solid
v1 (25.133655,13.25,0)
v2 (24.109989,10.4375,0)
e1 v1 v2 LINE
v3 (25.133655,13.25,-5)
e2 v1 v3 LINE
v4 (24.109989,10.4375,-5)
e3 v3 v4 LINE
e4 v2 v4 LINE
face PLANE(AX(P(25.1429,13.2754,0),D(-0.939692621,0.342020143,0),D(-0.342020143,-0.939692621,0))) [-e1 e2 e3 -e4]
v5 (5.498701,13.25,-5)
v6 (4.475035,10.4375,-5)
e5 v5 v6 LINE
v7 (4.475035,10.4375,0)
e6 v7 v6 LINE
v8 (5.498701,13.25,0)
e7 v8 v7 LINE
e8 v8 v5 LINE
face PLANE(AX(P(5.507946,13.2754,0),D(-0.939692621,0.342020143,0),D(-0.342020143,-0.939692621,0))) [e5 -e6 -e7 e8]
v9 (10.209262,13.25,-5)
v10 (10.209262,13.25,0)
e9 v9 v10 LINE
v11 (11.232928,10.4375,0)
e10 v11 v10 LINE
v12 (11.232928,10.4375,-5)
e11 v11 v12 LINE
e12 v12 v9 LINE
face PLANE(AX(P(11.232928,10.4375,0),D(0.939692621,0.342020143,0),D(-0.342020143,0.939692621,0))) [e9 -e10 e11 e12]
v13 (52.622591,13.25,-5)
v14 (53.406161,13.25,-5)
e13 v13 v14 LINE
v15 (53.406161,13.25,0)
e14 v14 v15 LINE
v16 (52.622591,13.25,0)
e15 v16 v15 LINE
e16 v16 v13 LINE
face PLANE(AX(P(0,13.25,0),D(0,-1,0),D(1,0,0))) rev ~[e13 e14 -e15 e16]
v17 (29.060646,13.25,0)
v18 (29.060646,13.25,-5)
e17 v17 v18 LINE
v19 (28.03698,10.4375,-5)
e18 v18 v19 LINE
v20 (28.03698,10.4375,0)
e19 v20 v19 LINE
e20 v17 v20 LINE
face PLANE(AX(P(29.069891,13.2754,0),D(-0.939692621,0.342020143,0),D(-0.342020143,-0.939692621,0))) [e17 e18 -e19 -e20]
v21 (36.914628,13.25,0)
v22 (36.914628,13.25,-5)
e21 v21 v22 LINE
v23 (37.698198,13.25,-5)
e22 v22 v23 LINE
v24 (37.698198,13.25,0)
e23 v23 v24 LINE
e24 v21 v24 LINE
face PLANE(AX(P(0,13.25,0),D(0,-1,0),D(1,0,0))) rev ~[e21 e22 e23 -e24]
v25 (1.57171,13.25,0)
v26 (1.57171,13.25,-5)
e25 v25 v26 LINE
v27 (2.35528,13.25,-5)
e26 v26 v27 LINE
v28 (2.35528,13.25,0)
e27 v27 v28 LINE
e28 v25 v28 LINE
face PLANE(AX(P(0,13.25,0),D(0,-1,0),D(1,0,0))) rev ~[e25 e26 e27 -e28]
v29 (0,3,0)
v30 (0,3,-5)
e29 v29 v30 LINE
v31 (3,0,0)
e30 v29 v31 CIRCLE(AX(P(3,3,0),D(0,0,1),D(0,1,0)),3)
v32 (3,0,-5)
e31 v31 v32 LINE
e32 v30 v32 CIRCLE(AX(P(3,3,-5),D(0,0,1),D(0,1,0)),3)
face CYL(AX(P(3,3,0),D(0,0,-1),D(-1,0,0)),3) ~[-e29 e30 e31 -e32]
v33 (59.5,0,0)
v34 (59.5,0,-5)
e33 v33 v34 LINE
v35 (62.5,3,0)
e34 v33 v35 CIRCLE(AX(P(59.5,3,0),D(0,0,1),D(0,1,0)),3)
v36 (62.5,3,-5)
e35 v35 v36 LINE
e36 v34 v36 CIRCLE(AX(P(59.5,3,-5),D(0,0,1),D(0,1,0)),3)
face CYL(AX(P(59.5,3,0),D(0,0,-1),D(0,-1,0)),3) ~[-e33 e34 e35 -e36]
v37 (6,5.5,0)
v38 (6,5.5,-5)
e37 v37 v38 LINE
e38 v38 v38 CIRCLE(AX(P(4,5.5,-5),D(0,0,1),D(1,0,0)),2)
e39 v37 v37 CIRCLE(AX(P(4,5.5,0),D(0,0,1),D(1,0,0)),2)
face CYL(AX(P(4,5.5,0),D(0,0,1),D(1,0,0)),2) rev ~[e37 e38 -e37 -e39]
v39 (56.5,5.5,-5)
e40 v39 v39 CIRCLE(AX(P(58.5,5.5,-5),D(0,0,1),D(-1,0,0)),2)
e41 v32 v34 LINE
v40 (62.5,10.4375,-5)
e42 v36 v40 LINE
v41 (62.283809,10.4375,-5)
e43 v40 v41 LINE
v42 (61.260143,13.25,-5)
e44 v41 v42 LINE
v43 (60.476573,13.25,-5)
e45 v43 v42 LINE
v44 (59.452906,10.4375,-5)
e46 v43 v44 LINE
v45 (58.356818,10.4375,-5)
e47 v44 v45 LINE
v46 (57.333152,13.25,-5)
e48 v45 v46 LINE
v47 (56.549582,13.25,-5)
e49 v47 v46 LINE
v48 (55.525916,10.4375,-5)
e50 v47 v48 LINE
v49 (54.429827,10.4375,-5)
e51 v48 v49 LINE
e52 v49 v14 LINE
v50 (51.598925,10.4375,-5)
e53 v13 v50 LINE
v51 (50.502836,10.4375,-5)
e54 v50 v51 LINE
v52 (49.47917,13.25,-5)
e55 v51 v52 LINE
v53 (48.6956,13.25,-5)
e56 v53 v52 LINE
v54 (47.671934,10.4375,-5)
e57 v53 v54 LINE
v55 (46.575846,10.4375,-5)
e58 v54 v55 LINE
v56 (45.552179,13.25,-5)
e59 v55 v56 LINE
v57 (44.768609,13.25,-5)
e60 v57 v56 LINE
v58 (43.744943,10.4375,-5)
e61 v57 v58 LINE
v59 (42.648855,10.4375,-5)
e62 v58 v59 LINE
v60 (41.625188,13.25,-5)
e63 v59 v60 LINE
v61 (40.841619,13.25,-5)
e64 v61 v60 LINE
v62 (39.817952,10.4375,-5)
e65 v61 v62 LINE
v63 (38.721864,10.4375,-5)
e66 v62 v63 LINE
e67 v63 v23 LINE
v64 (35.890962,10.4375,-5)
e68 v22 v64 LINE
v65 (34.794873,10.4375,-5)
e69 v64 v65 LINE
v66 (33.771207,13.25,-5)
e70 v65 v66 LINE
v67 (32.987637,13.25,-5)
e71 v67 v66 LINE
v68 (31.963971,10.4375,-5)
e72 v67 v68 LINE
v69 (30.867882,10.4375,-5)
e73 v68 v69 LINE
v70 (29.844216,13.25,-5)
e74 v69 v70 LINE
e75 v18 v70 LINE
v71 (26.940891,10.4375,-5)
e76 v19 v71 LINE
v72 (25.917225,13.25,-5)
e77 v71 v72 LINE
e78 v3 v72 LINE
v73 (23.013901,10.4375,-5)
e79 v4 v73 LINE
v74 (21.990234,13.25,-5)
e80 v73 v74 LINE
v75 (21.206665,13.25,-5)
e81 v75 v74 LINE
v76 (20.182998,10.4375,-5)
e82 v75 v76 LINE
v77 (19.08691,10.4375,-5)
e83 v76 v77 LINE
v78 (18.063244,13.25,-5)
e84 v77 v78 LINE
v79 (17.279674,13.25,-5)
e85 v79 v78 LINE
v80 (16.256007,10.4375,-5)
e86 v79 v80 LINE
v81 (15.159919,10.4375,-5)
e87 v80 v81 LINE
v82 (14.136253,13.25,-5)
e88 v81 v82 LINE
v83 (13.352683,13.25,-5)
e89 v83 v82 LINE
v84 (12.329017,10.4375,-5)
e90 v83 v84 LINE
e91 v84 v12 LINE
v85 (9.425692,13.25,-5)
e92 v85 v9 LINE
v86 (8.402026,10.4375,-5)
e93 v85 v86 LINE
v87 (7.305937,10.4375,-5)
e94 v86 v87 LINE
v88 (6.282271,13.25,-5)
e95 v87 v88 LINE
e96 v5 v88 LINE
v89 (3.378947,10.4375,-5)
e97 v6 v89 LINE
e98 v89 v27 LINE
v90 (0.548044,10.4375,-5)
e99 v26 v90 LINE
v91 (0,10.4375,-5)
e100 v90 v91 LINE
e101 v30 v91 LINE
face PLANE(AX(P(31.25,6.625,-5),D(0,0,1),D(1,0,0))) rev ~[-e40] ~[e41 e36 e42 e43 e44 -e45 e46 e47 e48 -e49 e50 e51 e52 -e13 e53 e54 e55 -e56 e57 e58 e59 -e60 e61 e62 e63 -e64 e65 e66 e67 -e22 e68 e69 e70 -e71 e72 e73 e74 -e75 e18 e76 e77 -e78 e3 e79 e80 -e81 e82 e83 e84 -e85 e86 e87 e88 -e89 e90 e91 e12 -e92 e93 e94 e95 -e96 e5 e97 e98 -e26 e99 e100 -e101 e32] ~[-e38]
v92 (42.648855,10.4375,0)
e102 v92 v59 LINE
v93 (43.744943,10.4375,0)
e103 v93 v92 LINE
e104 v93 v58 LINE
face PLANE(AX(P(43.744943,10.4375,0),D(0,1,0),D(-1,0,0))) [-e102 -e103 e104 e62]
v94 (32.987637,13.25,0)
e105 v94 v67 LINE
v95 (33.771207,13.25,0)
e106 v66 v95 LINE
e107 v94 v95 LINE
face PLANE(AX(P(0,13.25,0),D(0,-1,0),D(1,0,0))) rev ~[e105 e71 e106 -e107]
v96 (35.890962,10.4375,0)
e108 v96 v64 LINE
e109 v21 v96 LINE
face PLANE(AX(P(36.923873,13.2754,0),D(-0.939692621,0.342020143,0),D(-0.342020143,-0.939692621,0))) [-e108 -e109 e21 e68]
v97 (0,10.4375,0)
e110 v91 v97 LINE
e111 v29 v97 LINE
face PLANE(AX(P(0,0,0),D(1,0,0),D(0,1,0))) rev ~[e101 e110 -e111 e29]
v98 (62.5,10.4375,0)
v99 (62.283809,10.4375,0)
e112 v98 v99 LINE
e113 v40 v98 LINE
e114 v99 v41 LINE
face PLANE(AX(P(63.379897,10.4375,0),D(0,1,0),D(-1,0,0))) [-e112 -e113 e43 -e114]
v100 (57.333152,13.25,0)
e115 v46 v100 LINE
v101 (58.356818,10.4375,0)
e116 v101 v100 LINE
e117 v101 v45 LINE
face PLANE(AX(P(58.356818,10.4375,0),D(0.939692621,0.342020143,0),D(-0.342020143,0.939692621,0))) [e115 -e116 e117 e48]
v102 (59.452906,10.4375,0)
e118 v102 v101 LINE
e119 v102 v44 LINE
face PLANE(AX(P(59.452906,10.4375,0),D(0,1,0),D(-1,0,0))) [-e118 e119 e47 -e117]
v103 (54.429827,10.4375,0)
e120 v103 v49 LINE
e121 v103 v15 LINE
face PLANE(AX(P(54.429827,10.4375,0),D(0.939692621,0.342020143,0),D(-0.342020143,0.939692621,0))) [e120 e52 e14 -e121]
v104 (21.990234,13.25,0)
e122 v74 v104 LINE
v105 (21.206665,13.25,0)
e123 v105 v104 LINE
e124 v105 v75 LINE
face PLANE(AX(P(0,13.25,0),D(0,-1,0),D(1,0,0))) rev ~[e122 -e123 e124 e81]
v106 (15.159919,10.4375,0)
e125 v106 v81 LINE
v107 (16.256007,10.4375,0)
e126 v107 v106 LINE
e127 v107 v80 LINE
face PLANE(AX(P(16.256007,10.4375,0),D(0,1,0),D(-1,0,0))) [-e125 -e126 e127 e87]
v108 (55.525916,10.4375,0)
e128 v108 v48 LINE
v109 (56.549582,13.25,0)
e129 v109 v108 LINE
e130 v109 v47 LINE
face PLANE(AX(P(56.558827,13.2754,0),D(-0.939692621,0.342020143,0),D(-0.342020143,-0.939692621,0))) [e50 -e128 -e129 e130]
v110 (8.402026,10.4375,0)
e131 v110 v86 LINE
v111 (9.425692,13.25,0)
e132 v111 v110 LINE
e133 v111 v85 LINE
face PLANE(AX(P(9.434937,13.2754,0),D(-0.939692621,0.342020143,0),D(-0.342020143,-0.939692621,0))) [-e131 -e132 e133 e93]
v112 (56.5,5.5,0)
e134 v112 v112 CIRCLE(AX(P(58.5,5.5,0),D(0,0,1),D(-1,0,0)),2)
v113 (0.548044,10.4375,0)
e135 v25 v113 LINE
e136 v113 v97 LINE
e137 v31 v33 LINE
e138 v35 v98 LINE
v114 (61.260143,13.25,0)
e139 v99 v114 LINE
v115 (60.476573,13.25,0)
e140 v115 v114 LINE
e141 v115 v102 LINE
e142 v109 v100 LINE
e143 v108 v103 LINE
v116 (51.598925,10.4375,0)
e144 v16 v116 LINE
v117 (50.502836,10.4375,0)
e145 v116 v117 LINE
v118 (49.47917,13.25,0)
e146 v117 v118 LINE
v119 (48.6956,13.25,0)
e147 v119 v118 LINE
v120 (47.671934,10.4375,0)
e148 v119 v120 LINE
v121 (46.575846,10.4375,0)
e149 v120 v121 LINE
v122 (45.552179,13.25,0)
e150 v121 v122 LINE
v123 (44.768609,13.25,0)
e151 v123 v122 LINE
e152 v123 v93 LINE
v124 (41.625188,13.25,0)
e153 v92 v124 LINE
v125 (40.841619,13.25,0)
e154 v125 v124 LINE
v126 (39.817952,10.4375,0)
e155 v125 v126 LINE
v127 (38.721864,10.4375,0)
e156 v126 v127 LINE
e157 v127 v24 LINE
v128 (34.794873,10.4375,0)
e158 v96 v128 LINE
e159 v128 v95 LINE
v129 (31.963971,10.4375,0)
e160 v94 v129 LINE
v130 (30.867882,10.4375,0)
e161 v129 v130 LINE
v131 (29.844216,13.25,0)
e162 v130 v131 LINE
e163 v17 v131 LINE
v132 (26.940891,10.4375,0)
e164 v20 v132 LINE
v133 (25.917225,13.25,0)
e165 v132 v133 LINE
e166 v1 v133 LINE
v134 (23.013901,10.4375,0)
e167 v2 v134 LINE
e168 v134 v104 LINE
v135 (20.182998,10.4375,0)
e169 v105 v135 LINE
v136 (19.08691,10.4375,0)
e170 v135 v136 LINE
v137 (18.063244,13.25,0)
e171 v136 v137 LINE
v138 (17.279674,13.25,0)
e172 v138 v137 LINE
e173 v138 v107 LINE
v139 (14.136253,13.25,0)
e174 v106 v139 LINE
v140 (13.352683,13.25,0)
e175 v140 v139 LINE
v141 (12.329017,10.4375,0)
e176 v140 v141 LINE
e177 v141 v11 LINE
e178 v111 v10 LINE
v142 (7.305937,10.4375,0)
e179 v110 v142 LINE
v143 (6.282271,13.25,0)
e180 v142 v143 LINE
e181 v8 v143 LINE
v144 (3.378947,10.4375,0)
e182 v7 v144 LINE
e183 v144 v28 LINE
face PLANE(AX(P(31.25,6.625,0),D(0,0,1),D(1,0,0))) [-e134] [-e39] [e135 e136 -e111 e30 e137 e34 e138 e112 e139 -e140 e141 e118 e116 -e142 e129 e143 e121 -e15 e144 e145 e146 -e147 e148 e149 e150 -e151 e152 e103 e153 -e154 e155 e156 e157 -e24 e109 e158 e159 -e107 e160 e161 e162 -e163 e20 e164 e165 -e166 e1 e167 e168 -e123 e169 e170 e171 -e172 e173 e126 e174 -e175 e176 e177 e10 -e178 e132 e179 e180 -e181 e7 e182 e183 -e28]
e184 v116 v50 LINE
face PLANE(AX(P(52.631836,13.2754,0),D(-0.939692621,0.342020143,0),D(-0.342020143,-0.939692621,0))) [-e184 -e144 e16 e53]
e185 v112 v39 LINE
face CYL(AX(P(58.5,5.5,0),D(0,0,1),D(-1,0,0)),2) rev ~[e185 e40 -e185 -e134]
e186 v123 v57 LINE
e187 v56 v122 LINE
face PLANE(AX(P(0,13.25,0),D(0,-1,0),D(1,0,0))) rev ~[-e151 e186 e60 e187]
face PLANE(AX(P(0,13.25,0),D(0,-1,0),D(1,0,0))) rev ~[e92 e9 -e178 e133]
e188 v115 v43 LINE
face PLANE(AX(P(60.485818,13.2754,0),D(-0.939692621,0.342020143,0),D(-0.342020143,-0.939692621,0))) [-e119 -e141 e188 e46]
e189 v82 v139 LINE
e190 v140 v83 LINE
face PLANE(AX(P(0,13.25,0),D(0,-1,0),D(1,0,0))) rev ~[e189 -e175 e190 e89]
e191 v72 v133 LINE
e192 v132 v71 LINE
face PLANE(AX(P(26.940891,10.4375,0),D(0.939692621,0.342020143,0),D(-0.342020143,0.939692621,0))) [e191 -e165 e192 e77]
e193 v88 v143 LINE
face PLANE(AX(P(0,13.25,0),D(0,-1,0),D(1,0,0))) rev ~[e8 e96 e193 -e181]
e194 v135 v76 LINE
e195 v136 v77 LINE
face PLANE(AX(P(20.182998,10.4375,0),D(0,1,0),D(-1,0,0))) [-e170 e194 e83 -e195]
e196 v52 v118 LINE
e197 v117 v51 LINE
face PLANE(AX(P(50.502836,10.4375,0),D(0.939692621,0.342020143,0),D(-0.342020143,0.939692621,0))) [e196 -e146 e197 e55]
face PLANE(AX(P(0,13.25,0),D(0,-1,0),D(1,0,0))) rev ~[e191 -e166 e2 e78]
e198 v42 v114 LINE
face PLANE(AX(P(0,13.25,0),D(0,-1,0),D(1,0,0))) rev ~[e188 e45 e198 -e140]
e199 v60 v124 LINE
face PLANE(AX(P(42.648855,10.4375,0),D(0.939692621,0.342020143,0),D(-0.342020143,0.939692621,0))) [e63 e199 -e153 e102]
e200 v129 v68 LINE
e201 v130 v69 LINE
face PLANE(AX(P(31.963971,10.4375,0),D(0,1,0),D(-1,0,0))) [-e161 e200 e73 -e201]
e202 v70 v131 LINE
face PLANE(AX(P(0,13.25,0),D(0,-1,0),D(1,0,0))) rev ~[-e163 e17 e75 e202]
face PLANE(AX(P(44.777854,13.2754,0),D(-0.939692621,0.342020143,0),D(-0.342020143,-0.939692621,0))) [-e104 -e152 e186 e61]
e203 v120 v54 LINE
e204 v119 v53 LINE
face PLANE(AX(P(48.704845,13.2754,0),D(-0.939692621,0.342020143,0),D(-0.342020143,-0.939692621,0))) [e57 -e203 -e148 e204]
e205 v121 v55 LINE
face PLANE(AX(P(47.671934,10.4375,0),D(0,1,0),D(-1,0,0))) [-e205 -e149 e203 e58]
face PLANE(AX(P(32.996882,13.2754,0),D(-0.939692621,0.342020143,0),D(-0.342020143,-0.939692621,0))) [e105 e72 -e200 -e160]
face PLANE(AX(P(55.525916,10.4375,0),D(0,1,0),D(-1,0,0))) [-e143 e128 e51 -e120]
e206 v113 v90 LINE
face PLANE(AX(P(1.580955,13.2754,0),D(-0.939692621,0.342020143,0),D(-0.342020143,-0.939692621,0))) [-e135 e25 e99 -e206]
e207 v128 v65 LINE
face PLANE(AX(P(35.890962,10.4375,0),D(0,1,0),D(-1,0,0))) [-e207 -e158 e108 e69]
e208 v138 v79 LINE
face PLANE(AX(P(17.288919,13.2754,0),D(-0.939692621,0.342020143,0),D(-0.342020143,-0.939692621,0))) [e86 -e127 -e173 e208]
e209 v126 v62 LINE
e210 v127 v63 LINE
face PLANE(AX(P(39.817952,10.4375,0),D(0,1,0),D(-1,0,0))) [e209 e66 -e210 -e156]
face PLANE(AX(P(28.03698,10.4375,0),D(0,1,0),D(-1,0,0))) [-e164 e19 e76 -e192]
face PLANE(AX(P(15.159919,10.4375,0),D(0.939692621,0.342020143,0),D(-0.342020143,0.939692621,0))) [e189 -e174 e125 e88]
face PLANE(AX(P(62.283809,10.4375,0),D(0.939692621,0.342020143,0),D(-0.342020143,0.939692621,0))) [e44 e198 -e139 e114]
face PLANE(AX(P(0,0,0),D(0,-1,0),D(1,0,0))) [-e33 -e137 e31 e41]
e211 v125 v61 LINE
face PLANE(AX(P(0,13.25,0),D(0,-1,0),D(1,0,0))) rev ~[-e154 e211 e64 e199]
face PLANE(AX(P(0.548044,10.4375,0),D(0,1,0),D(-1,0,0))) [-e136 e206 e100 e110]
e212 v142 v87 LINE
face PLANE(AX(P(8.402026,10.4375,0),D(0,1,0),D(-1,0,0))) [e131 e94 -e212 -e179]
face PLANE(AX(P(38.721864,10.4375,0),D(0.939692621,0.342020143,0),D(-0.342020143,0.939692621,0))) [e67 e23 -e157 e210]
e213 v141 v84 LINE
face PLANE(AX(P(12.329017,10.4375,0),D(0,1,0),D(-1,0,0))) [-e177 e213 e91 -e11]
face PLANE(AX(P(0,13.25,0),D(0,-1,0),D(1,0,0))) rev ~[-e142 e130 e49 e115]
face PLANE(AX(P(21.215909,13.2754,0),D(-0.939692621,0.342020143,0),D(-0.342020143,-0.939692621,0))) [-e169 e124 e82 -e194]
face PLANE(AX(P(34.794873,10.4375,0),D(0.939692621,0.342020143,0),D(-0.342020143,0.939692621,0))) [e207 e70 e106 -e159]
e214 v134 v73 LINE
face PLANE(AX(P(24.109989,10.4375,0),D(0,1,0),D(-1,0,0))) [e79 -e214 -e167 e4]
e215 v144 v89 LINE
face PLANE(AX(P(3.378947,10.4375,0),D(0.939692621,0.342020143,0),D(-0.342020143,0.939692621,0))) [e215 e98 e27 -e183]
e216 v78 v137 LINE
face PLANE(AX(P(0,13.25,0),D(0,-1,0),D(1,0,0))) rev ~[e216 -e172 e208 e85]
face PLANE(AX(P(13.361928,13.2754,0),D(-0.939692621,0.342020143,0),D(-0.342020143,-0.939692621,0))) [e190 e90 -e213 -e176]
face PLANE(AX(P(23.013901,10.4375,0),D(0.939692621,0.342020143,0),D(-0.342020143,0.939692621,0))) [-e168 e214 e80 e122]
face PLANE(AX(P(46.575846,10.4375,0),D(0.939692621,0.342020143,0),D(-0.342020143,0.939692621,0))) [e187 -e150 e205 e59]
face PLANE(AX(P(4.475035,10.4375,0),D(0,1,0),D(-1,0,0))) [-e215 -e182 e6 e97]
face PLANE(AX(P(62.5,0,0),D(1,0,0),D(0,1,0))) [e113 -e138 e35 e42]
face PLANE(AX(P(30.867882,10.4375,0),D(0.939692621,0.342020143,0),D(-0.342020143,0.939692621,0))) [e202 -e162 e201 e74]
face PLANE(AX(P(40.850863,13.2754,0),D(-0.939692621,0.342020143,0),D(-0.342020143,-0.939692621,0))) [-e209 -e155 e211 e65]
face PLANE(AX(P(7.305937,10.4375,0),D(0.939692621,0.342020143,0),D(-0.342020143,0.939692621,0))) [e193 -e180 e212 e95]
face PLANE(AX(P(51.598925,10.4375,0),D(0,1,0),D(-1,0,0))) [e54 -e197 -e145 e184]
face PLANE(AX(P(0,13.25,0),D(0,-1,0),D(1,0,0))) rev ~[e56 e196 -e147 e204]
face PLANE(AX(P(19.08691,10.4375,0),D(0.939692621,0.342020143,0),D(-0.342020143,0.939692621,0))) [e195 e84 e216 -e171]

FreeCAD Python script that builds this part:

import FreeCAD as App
import Part
import Sketcher
Q = App.Units.Quantity


def edges_at(feature, points):
    """Names of the edges that pass closest to the given points."""
    edges = feature.Shape.Edges
    near = lambda p: min(range(len(edges)), key=lambda i: edges[i].distToShape(Part.Vertex(*p))[0])
    return sorted({f"Edge{near(p) + 1}" for p in points})


def add_polygon(sketch, points):
    """Adds a closed chain of lines whose ends are joined by coincident constraints."""
    first, n = sketch.GeometryCount, len(points)
    for a, b in zip(points, points[1:] + points[:1]):
        sketch.addGeometry(Part.LineSegment(App.Vector(*a, 0), App.Vector(*b, 0)), False)
    for i in range(n):
        sketch.addConstraint(Sketcher.Constraint("Coincident", first + i, 2, first + (i + 1) % n, 1))

doc = App.newDocument("Part")
params = doc.addObject("Spreadsheet::Sheet", "Params")
for row, (alias, value) in enumerate([
    ("sketch1_diameter", "4 mm"),
    ("sketch1_width", "62.5 mm"),
    ("sketch1_height", "13.25 mm"),
    ("pad1_length", "5 mm"),
    ("linearpattern_pitch", "3.926991 mm"),
    ("fillet_radius", "3 mm"),
], start=1):
    params.set(f"A{row}", alias)
    params.set(f"B{row}", "=" + value)
    params.setAlias(f"B{row}", alias)

body = doc.addObject("PartDesign::Body", "Body")

# Sketch on XY plane
sketch1 = body.newObject("Sketcher::SketchObject", "Sketch")
sketch1.AttachmentSupport = (doc.getObject("XY_Plane"), [""])
sketch1.MapMode = "FlatFace"
add_polygon(sketch1, [(0, 13.2), (0, 0), (62.5, 0), (62.5, 13.2)])  # lines 0-3
sketch1.addGeometry(Part.Circle(App.Vector(4, 5.5, 0), App.Vector(0, 0, 1), 2), False)  # 4
sketch1.addGeometry(Part.Circle(App.Vector(58.5, 5.5, 0), App.Vector(0, 0, 1), 2), False)  # 5
sketch1.addConstraint(Sketcher.Constraint("Vertical", 0))
sketch1.addConstraint(Sketcher.Constraint("Horizontal", 1))
sketch1.addConstraint(Sketcher.Constraint("Vertical", 2))
sketch1.addConstraint(Sketcher.Constraint("Horizontal", 3))
sketch1.addConstraint(Sketcher.Constraint("Coincident", 0, 2, -1, 1))
sketch1.addConstraint(Sketcher.Constraint("Equal", 4, 5))
sketch1.addConstraint(Sketcher.Constraint("Horizontal", 4, 3, 5, 3))
sketch1.addConstraint(Sketcher.Constraint("Diameter", 4, Q("4 mm")))
sketch1.addConstraint(Sketcher.Constraint("DistanceX", 1, 1, 1, 2, Q("62.5 mm")))
sketch1.addConstraint(Sketcher.Constraint("DistanceX", -1, 1, 4, 3, Q("4 mm")))
sketch1.addConstraint(Sketcher.Constraint("DistanceX", 5, 3, 1, 2, Q("4 mm")))
sketch1.addConstraint(Sketcher.Constraint("DistanceY", 0, 2, 0, 1, Q("13.25 mm")))
sketch1.addConstraint(Sketcher.Constraint("DistanceY", -1, 1, 4, 3, Q("5.5 mm")))
sketch1.setExpression("Constraints[11]", "Params.sketch1_diameter")
sketch1.setExpression("Constraints[12]", "Params.sketch1_width")
sketch1.setExpression("Constraints[15]", "Params.sketch1_height")
pad1 = body.newObject("PartDesign::Pad", "Pad")
pad1.Profile = sketch1
pad1.setExpression("Length", "Params.pad1_length")
pad1.Reversed = True

# Sketch on XY plane
sketch2 = body.newObject("Sketcher::SketchObject", "Sketch001")
sketch2.AttachmentSupport = (doc.getObject("XY_Plane"), [""])
sketch2.MapMode = "FlatFace"
add_polygon(sketch2, [(-0.5, 10.4), (0.5, 10.4), (1.6, 13.3), (-1.6, 13.3)])  # lines 0-3
sketch2.addConstraint(Sketcher.Constraint("Horizontal", 0))
sketch2.addConstraint(Sketcher.Constraint("Horizontal", 2))
sketch2.addConstraint(Sketcher.Constraint("Equal", 1, 3))
sketch2.addConstraint(Sketcher.Constraint("Angle", 1, Q("70 deg")))
sketch2.addConstraint(Sketcher.Constraint("DistanceX", 2, 2, 0, 2, Q("2.129 mm")))
sketch2.addConstraint(Sketcher.Constraint("DistanceX", 0, 1, 0, 2, Q("1.096088 mm")))
sketch2.addConstraint(Sketcher.Constraint("DistanceY", -1, 1, 0, 2, Q("10.4375 mm")))
sketch2.addConstraint(Sketcher.Constraint("DistanceX", -1, 1, 0, 2, Q("0.548044 mm")))
pocket1 = body.newObject("PartDesign::Pocket", "Pocket")
pocket1.Profile = sketch2
pocket1.Type = "ThroughAll"
doc.recompute()

linearpattern = body.newObject("PartDesign::LinearPattern", "LinearPattern")
linearpattern.Originals = [pocket1]
linearpattern.Direction = (doc.getObject("X_Axis"), [""])
linearpattern.Mode = "offset"
linearpattern.setExpression("Offset", "Params.linearpattern_pitch")
linearpattern.Occurrences = 17
body.Tip = linearpattern
doc.recompute()

fillet = body.newObject("PartDesign::Fillet", "Fillet")
fillet.Base = (linearpattern, edges_at(linearpattern, [(62.5, 0, -2.5), (0, 0, -2.5)]))
fillet.setExpression("Radius", "Params.fillet_radius")

doc.recompute()
